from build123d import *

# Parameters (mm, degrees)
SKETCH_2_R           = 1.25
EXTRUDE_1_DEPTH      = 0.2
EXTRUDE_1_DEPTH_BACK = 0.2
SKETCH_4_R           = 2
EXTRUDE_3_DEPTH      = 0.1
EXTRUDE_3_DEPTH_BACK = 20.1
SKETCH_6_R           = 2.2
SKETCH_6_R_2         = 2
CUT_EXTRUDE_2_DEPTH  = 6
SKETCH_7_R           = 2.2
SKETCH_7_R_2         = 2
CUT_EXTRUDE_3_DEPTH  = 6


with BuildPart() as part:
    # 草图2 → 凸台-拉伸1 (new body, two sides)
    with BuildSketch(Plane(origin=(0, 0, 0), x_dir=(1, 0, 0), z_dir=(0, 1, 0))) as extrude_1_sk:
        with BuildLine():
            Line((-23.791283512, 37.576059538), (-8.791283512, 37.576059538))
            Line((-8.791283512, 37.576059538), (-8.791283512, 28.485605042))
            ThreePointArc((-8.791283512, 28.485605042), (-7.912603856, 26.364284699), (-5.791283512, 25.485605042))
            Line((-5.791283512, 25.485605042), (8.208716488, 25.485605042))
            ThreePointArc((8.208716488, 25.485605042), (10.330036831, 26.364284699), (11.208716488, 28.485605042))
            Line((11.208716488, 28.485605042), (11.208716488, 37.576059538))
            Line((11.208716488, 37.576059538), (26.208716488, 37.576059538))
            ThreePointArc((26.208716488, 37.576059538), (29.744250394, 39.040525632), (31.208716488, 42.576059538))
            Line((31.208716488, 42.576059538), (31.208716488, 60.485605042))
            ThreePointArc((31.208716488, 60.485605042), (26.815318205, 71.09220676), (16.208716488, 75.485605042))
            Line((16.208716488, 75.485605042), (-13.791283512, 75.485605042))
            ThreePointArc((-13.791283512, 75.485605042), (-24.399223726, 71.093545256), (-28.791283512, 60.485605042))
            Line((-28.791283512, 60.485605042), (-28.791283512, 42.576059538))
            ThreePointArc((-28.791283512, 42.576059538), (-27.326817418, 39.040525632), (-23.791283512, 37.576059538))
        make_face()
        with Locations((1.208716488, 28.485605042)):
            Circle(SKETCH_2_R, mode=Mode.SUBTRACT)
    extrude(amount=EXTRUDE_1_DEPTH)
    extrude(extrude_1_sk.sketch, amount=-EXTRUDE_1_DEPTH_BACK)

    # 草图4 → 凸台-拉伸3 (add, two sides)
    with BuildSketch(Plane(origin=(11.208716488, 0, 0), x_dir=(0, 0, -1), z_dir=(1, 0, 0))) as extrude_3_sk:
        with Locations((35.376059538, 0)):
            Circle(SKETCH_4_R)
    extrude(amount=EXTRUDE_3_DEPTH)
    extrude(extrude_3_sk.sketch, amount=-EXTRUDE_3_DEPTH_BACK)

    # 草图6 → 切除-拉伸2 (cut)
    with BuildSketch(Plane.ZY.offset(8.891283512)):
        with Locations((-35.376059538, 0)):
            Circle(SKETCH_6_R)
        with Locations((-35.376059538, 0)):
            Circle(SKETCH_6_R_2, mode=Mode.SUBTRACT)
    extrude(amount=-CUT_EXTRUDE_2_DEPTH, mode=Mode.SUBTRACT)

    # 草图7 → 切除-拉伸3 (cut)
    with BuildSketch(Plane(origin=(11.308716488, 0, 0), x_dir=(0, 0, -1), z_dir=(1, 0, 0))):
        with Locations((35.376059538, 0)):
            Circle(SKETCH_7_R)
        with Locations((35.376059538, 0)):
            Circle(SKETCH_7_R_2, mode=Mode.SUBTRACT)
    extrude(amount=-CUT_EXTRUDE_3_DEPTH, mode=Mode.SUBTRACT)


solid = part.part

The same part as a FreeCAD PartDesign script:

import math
import FreeCAD as App
import Part
import Sketcher

doc = App.newDocument("Part")
body = doc.addObject("PartDesign::Body", "Body")

# Sketch on XZ plane
sketch1 = body.newObject("Sketcher::SketchObject", "Sketch")
sketch1.AttachmentSupport = (doc.getObject("XZ_Plane"), [""])
sketch1.MapMode = "FlatFace"
sketch1.addGeometry(Part.LineSegment(App.Vector(-23.8, -37.6, 0), App.Vector(-8.8, -37.6, 0)), False)
sketch1.addGeometry(Part.LineSegment(App.Vector(-8.8, -37.6, 0), App.Vector(-8.8, -28.5, 0)), False)
sketch1.addGeometry(Part.ArcOfCircle(Part.Circle(App.Vector(-5.8, -28.5, 0), App.Vector(0, 0, 1), 3), math.radians(90), math.radians(180)), False)
sketch1.addGeometry(Part.LineSegment(App.Vector(-5.8, -25.5, 0), App.Vector(8.2, -25.5, 0)), False)
sketch1.addGeometry(Part.ArcOfCircle(Part.Circle(App.Vector(8.2, -28.5, 0), App.Vector(0, 0, 1), 3), math.radians(0), math.radians(90)), False)
sketch1.addGeometry(Part.LineSegment(App.Vector(11.2, -28.5, 0), App.Vector(11.2, -37.6, 0)), False)
sketch1.addGeometry(Part.LineSegment(App.Vector(11.2, -37.6, 0), App.Vector(26.2, -37.6, 0)), False)
sketch1.addGeometry(Part.ArcOfCircle(Part.Circle(App.Vector(26.2, -42.6, 0), App.Vector(0, 0, 1), 5), math.radians(0), math.radians(90)), False)
sketch1.addGeometry(Part.LineSegment(App.Vector(31.2, -42.6, 0), App.Vector(31.2, -60.5, 0)), False)
sketch1.addGeometry(Part.ArcOfCircle(Part.Circle(App.Vector(16.2, -60.5, 0), App.Vector(0, 0, 1), 15), math.radians(-90), math.radians(0)), False)
sketch1.addGeometry(Part.LineSegment(App.Vector(16.2, -75.5, 0), App.Vector(-13.8, -75.5, 0)), False)
sketch1.addGeometry(Part.ArcOfCircle(Part.Circle(App.Vector(-13.8, -60.5, 0), App.Vector(0, 0, 1), 15), math.radians(180), math.radians(270)), False)
sketch1.addGeometry(Part.LineSegment(App.Vector(-28.8, -60.5, 0), App.Vector(-28.8, -42.6, 0)), False)
sketch1.addGeometry(Part.ArcOfCircle(Part.Circle(App.Vector(-23.8, -42.6, 0), App.Vector(0, 0, 1), 5), math.radians(90), math.radians(180)), False)
sketch1.addGeometry(Part.Circle(App.Vector(1.2, -28.5, 0), App.Vector(0, 0, 1), 1.2), False)
sketch1.addConstraint(Sketcher.Constraint("Coincident", 0, 2, 1, 1))
sketch1.addConstraint(Sketcher.Constraint("Tangent", 1, 2, 2, 2))
sketch1.addConstraint(Sketcher.Constraint("Tangent", 2, 1, 3, 1))
sketch1.addConstraint(Sketcher.Constraint("Tangent", 3, 2, 4, 2))
sketch1.addConstraint(Sketcher.Constraint("Tangent", 4, 1, 5, 1))
sketch1.addConstraint(Sketcher.Constraint("Coincident", 5, 2, 6, 1))
sketch1.addConstraint(Sketcher.Constraint("Tangent", 6, 2, 7, 2))
sketch1.addConstraint(Sketcher.Constraint("Tangent", 7, 1, 8, 1))
sketch1.addConstraint(Sketcher.Constraint("Tangent", 8, 2, 9, 2))
sketch1.addConstraint(Sketcher.Constraint("Tangent", 9, 1, 10, 1))
sketch1.addConstraint(Sketcher.Constraint("Coincident", 10, 2, 11, 2))
sketch1.addConstraint(Sketcher.Constraint("Coincident", 11, 1, 12, 1))
sketch1.addConstraint(Sketcher.Constraint("Tangent", 12, 2, 13, 2))
sketch1.addConstraint(Sketcher.Constraint("Tangent", 13, 1, 0, 1))
sketch1.addConstraint(Sketcher.Constraint("Horizontal", 0))
sketch1.addConstraint(Sketcher.Constraint("Vertical", 1))
sketch1.addConstraint(Sketcher.Constraint("Horizontal", 3))
sketch1.addConstraint(Sketcher.Constraint("Vertical", 5))
sketch1.addConstraint(Sketcher.Constraint("Horizontal", 6))
sketch1.addConstraint(Sketcher.Constraint("Vertical", 8))
sketch1.addConstraint(Sketcher.Constraint("Horizontal", 10))
sketch1.addConstraint(Sketcher.Constraint("Vertical", 12))
sketch1.addConstraint(Sketcher.Constraint("Equal", 2, 4))
sketch1.addConstraint(Sketcher.Constraint("Equal", 7, 13))
sketch1.addConstraint(Sketcher.Constraint("Horizontal", 7, 3, 13, 3))
sketch1.addConstraint(Sketcher.Constraint("Horizontal", 4, 3, 14, 3))
sketch1.addConstraint(Sketcher.Constraint("Horizontal", 8, 2, 11, 1))
sketch1.addConstraint(Sketcher.Constraint("Equal", 0, 6))
sketch1.addConstraint(Sketcher.Constraint("Radius", 2, 3.0))
sketch1.addConstraint(Sketcher.Constraint("Radius", 7, 5.0))
sketch1.addConstraint(Sketcher.Constraint("Radius", 9, 15.0))
sketch1.addConstraint(Sketcher.Constraint("Diameter", 14, 2.5))
sketch1.addConstraint(Sketcher.Constraint("DistanceX", 0, 1, 0, 2, 15.0))
sketch1.addConstraint(Sketcher.Constraint("DistanceX", 3, 1, 3, 2, 14.0))
sketch1.addConstraint(Sketcher.Constraint("DistanceX", 10, 2, 10, 1, 30.0))
sketch1.addConstraint(Sketcher.Constraint("DistanceY", 9, 3, 4, 3, 32.0))
sketch1.addConstraint(Sketcher.Constraint("DistanceX", 14, 3, 4, 3, 7.0))
sketch1.addConstraint(Sketcher.Constraint("Radius", 11, 14.995432))
sketch1.addConstraint(Sketcher.Constraint("DistanceY", 1, 1, 1, 2, 9.090454))
sketch1.addConstraint(Sketcher.Constraint("DistanceY", 7, 3, -1, 1, 42.57606))
sketch1.addConstraint(Sketcher.Constraint("DistanceX", 11, 3, -1, 1, 13.795852))
pad1 = body.newObject("PartDesign::Pad", "Pad")
pad1.Profile = sketch1
pad1.Type = "TwoLengths"
pad1.Length = 0.2
pad1.Length2 = 0.2
pad1.Reversed = True

# Sketch on YZ plane
sketch2 = body.newObject("Sketcher::SketchObject", "Sketch001")
sketch2.AttachmentSupport = (doc.getObject("YZ_Plane"), [""])
sketch2.MapMode = "FlatFace"
sketch2.AttachmentOffset = App.Placement(App.Vector(0, 0, 11.208716), App.Rotation())
sketch2.addGeometry(Part.Circle(App.Vector(0, -35.4, 0), App.Vector(0, 0, 1), 2), False)
sketch2.addConstraint(Sketcher.Constraint("PointOnObject", 0, 3, -2))
sketch2.addConstraint(Sketcher.Constraint("Diameter", 0, 4.0))
sketch2.addConstraint(Sketcher.Constraint("DistanceY", 0, 3, -1, 1, 35.37606))
pad2 = body.newObject("PartDesign::Pad", "Pad001")
pad2.Profile = sketch2
pad2.Type = "TwoLengths"
pad2.Length = 0.1
pad2.Length2 = 20.1

# Sketch on YZ plane
sketch3 = body.newObject("Sketcher::SketchObject", "Sketch002")
sketch3.AttachmentSupport = (doc.getObject("YZ_Plane"), [""])
sketch3.MapMode = "FlatFace"
sketch3.AttachmentOffset = App.Placement(App.Vector(0, 0, -8.891284), App.Rotation())
sketch3.addGeometry(Part.Circle(App.Vector(0, -35.4, 0), App.Vector(0, 0, 1), 2.2), False)
sketch3.addGeometry(Part.Circle(App.Vector(0, -35.4, 0), App.Vector(0, 0, 1), 2), False)
sketch3.addConstraint(Sketcher.Constraint("Coincident", 1, 3, 0, 3))
sketch3.addConstraint(Sketcher.Constraint("PointOnObject", 0, 3, -2))
sketch3.addConstraint(Sketcher.Constraint("Diameter", 1, 4.0))
sketch3.addConstraint(Sketcher.Constraint("Diameter", 0, 4.4))
sketch3.addConstraint(Sketcher.Constraint("DistanceY", 0, 3, -1, 1, 35.37606))
pocket1 = body.newObject("PartDesign::Pocket", "Pocket")
pocket1.Profile = sketch3
pocket1.Length = 6
pocket1.Reversed = True

# Sketch on YZ plane
sketch4 = body.newObject("Sketcher::SketchObject", "Sketch003")
sketch4.AttachmentSupport = (doc.getObject("YZ_Plane"), [""])
sketch4.MapMode = "FlatFace"
sketch4.AttachmentOffset = App.Placement(App.Vector(0, 0, 11.308716), App.Rotation())
sketch4.addGeometry(Part.Circle(App.Vector(0, -35.4, 0), App.Vector(0, 0, 1), 2.2), False)
sketch4.addGeometry(Part.Circle(App.Vector(0, -35.4, 0), App.Vector(0, 0, 1), 2), False)
sketch4.addConstraint(Sketcher.Constraint("Coincident", 1, 3, 0, 3))
sketch4.addConstraint(Sketcher.Constraint("PointOnObject", 0, 3, -2))
sketch4.addConstraint(Sketcher.Constraint("Diameter", 1, 4.0))
sketch4.addConstraint(Sketcher.Constraint("Diameter", 0, 4.4))
sketch4.addConstraint(Sketcher.Constraint("DistanceY", 0, 3, -1, 1, 35.37606))
pocket2 = body.newObject("PartDesign::Pocket", "Pocket001")
pocket2.Profile = sketch4
pocket2.Length = 6

doc.recompute()
